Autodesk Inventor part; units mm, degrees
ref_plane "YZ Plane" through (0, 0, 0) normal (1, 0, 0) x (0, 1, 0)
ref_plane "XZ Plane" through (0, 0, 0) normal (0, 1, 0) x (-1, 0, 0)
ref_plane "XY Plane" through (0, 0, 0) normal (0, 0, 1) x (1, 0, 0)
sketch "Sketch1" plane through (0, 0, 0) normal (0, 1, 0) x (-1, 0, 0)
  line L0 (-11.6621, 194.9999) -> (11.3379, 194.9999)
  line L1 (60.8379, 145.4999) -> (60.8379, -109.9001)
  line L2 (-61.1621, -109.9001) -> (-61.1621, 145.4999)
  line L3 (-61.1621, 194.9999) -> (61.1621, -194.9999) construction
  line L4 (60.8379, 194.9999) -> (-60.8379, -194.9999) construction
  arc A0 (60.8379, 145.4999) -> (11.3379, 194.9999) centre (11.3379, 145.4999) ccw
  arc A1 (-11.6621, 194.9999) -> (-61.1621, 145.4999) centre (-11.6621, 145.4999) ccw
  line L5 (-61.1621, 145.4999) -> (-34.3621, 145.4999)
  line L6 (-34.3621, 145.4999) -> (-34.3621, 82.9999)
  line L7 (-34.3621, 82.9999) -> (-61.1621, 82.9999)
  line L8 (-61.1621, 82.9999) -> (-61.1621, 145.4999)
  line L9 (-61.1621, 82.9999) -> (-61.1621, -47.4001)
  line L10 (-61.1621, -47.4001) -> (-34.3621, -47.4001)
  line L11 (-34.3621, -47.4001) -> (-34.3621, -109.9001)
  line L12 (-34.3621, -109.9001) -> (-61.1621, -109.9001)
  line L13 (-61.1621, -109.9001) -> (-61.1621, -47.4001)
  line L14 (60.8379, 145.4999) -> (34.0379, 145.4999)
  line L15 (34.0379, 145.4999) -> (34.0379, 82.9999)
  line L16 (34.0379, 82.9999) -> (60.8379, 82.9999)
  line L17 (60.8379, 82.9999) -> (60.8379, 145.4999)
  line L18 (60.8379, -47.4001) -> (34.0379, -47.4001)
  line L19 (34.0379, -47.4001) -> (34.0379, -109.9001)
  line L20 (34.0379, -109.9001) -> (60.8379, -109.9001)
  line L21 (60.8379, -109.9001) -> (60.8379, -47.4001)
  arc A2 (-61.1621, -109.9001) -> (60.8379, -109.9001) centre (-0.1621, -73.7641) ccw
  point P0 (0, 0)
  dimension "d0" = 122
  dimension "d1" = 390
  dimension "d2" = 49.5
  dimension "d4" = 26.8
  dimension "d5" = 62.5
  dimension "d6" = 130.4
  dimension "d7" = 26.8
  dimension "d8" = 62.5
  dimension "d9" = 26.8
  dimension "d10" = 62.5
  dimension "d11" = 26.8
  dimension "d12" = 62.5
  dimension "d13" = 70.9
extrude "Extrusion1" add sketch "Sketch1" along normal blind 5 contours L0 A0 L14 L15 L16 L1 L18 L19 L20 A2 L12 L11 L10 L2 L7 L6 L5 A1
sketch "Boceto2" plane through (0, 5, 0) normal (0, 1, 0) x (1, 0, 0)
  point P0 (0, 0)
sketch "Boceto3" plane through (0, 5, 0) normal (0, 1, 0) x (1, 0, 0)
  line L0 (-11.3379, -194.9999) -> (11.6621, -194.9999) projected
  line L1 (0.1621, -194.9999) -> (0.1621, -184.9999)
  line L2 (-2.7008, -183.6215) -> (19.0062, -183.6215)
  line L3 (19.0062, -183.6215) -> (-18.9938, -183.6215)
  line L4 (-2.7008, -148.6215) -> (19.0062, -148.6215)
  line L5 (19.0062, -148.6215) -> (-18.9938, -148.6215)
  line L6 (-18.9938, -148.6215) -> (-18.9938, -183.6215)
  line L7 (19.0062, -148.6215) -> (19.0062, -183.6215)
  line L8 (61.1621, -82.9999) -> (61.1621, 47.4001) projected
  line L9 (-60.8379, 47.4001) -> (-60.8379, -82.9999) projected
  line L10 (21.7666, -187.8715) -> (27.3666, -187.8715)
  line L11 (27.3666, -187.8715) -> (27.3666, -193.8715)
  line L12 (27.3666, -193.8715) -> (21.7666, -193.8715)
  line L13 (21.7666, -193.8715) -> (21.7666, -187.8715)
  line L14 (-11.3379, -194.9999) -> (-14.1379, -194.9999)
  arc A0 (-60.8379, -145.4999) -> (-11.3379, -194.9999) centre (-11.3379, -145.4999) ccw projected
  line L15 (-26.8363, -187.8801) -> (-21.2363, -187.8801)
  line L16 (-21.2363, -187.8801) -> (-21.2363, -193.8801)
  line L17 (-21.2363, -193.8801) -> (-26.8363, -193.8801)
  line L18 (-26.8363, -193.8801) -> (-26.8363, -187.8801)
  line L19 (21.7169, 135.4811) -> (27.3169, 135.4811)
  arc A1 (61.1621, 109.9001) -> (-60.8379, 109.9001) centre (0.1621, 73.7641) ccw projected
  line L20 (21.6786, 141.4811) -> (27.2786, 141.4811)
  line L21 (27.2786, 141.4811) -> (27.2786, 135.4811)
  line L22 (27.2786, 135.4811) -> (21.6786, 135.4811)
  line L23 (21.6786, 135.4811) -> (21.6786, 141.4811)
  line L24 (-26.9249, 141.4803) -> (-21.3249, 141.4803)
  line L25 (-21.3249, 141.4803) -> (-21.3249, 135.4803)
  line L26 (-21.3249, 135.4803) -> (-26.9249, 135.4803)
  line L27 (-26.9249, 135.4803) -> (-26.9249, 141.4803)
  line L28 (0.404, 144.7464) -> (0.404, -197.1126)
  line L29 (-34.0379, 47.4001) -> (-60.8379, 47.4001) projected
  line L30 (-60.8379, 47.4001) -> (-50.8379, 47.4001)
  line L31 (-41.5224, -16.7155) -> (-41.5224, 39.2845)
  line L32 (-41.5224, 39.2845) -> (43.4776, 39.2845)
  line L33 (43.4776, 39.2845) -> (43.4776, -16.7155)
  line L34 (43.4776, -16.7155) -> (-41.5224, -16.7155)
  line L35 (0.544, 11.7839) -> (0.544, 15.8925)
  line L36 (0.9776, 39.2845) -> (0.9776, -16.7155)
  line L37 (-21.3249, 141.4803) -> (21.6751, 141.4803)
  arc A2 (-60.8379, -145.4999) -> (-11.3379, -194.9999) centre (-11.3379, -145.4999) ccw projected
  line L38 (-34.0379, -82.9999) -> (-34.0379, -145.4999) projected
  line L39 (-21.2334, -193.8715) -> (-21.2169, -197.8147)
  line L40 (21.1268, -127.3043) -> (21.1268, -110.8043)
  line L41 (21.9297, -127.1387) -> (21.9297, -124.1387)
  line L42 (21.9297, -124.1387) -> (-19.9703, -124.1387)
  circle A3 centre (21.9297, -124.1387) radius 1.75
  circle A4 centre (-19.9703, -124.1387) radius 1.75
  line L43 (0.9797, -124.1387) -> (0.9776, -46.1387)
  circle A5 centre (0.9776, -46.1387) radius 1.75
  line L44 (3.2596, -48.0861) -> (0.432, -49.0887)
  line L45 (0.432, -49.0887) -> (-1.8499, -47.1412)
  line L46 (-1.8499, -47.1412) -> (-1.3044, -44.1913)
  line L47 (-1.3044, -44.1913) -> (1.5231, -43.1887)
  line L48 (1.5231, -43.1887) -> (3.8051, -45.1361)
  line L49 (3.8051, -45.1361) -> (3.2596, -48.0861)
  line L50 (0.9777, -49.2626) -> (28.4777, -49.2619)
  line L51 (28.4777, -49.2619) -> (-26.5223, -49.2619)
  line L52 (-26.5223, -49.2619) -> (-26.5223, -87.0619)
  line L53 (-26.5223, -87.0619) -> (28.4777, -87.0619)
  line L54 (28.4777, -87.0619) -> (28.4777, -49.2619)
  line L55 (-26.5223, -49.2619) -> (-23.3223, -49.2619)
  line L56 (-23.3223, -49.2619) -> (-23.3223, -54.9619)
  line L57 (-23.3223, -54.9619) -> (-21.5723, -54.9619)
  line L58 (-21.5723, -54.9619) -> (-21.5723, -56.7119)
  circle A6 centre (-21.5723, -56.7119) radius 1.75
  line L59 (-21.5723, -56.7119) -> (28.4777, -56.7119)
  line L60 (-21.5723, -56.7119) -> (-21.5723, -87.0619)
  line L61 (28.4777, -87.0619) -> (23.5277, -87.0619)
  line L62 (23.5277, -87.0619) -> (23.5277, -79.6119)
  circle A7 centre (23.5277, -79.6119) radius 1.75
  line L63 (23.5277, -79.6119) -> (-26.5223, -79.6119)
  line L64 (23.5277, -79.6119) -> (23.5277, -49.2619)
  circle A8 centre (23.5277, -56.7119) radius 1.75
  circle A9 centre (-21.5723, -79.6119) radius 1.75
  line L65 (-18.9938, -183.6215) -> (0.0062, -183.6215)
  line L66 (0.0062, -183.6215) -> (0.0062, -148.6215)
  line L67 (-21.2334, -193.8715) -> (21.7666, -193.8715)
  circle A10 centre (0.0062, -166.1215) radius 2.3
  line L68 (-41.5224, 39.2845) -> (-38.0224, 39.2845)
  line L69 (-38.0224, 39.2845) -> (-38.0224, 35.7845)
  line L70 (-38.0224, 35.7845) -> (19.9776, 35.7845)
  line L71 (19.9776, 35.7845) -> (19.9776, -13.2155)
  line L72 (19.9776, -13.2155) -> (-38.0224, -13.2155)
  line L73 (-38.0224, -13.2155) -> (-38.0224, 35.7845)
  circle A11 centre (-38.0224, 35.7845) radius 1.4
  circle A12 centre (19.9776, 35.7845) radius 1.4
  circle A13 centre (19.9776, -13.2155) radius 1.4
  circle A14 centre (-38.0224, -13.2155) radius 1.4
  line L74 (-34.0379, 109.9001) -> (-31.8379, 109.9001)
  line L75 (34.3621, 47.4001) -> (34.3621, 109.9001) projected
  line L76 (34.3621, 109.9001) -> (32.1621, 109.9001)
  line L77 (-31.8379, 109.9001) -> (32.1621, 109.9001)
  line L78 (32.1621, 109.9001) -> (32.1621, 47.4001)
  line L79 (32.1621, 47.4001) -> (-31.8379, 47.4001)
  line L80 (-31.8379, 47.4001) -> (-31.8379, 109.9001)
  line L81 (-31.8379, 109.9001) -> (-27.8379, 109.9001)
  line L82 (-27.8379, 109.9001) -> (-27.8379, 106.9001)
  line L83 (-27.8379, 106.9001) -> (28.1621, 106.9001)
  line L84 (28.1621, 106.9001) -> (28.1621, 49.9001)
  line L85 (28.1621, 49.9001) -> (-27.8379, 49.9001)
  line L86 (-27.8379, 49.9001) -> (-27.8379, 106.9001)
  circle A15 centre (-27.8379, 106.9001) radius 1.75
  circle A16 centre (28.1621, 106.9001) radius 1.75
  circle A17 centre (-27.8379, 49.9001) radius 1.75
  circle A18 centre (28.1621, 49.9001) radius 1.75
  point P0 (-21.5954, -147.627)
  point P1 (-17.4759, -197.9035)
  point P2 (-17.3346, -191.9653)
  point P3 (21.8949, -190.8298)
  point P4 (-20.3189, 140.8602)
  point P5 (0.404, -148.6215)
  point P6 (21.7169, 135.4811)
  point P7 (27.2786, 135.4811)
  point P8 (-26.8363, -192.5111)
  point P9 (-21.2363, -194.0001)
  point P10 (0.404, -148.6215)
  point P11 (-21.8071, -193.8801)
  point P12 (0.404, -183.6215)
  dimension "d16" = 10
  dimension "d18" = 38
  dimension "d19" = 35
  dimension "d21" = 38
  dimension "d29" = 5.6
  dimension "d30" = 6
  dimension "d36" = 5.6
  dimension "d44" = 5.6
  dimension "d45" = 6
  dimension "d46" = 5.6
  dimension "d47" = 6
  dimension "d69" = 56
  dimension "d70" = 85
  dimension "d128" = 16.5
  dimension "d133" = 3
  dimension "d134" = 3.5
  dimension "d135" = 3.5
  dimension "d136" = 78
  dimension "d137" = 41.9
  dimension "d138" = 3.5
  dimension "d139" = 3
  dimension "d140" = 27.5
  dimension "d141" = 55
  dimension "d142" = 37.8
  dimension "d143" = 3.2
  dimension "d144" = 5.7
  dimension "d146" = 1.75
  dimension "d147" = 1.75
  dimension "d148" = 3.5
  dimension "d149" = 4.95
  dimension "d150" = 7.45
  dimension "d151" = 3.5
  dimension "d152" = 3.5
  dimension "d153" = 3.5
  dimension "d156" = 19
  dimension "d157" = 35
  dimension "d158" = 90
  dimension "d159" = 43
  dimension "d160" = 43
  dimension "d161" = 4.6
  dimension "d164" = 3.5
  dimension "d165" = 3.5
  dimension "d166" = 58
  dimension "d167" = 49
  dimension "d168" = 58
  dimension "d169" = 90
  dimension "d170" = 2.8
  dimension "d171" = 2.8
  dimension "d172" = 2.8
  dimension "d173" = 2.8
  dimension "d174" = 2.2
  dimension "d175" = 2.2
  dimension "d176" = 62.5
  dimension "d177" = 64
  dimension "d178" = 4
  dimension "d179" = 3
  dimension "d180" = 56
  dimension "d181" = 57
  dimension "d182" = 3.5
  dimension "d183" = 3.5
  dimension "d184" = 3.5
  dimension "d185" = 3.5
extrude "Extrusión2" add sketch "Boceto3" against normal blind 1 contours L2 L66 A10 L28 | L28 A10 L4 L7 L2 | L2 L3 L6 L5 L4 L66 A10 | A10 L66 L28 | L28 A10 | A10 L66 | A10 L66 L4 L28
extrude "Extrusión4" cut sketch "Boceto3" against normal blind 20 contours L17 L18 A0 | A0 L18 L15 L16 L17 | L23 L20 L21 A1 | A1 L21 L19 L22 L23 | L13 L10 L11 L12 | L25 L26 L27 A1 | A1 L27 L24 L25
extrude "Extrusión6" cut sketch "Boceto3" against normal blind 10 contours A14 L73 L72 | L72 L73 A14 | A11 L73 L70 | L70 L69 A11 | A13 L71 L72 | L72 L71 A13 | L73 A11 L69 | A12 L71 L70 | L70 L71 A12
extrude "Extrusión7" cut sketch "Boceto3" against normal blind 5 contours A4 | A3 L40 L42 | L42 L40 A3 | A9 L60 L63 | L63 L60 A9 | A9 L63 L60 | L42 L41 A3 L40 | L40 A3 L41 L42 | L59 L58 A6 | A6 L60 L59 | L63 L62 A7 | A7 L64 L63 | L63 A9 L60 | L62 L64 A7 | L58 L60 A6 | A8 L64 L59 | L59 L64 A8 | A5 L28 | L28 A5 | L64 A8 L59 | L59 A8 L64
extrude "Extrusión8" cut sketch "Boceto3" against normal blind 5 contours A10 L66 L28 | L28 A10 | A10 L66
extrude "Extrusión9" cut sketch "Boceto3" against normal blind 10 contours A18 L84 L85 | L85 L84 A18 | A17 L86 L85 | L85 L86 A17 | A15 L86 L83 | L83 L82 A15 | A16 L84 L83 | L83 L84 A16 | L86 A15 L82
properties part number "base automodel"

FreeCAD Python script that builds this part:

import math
import FreeCAD as App
import Part
import Sketcher
Q = App.Units.Quantity

doc = App.newDocument("Part")
params = doc.addObject("Spreadsheet::Sheet", "Params")
for row, (alias, value) in enumerate([
    ("sketch1_radius", "49.5 mm"),
    ("sketch1_radius2", "70.9 mm"),
    ("sketch1_width", "26.8 mm"),
    ("sketch1_height", "62.5 mm"),
    ("sketch1_height2", "130.4 mm"),
    ("pad1_length", "5 mm"),
    ("sketch2_width", "38 mm"),
    ("sketch2_height", "35 mm"),
    ("pad2_length", "1 mm"),
    ("sketch3_height", "6 mm"),
    ("sketch3_width", "5.6 mm"),
    ("pocket1_length", "20 mm"),
    ("sketch4_diameter", "2.8 mm"),
    ("pocket2_length", "10 mm"),
    ("sketch5_diameter", "3.5 mm"),
    ("pocket3_length", "5 mm"),
    ("sketch6_diameter", "4.6 mm"),
    ("pocket4_length", "5 mm"),
    ("sketch7_diameter", "3.5 mm"),
    ("pocket5_length", "10 mm"),
], start=1):
    params.set(f"A{row}", alias)
    params.set(f"B{row}", "=" + value)
    params.setAlias(f"B{row}", alias)

body = doc.addObject("PartDesign::Body", "Body")

# Sketch on XZ plane
sketch1 = body.newObject("Sketcher::SketchObject", "Sketch")
sketch1.AttachmentSupport = (doc.getObject("XZ_Plane"), [""])
sketch1.MapMode = "FlatFace"
sketch1.addGeometry(Part.LineSegment(App.Vector(-11.3379, 194.9999, 0), App.Vector(11.6621, 194.9999, 0)), False)
sketch1.addGeometry(Part.ArcOfCircle(Part.Circle(App.Vector(11.6621, 145.4999, 0), App.Vector(0, 0, 1), 49.5), math.radians(0), math.radians(90)), False)
sketch1.addGeometry(Part.LineSegment(App.Vector(61.1621, 145.4999, 0), App.Vector(34.3621, 145.4999, 0)), False)
sketch1.addGeometry(Part.LineSegment(App.Vector(34.3621, 145.4999, 0), App.Vector(34.3621, 82.9999, 0)), False)
sketch1.addGeometry(Part.LineSegment(App.Vector(34.3621, 82.9999, 0), App.Vector(61.1621, 82.9999, 0)), False)
sketch1.addGeometry(Part.LineSegment(App.Vector(61.1621, 82.9999, 0), App.Vector(61.1621, -47.4001, 0)), False)
sketch1.addGeometry(Part.LineSegment(App.Vector(61.1621, -47.4001, 0), App.Vector(34.3621, -47.4001, 0)), False)
sketch1.addGeometry(Part.LineSegment(App.Vector(34.3621, -47.4001, 0), App.Vector(34.3621, -109.9001, 0)), False)
sketch1.addGeometry(Part.LineSegment(App.Vector(34.3621, -109.9001, 0), App.Vector(61.1621, -109.9001, 0)), False)
sketch1.addGeometry(Part.ArcOfCircle(Part.Circle(App.Vector(0.1621, -73.7641, 0), App.Vector(0, 0, 1), 70.900003), math.radians(-149.357778), math.radians(-30.642222)), False)
sketch1.addGeometry(Part.LineSegment(App.Vector(-60.8379, -109.9001, 0), App.Vector(-34.0379, -109.9001, 0)), False)
sketch1.addGeometry(Part.LineSegment(App.Vector(-34.0379, -109.9001, 0), App.Vector(-34.0379, -47.4001, 0)), False)
sketch1.addGeometry(Part.LineSegment(App.Vector(-34.0379, -47.4001, 0), App.Vector(-60.8379, -47.4001, 0)), False)
sketch1.addGeometry(Part.LineSegment(App.Vector(-60.8379, -47.4001, 0), App.Vector(-60.8379, 82.9999, 0)), False)
sketch1.addGeometry(Part.LineSegment(App.Vector(-60.8379, 82.9999, 0), App.Vector(-34.0379, 82.9999, 0)), False)
sketch1.addGeometry(Part.LineSegment(App.Vector(-34.0379, 82.9999, 0), App.Vector(-34.0379, 145.4999, 0)), False)
sketch1.addGeometry(Part.LineSegment(App.Vector(-34.0379, 145.4999, 0), App.Vector(-60.8379, 145.4999, 0)), False)
sketch1.addGeometry(Part.ArcOfCircle(Part.Circle(App.Vector(-11.3379, 145.4999, 0), App.Vector(0, 0, 1), 49.5), math.radians(90), math.radians(180)), False)
sketch1.addConstraint(Sketcher.Constraint("Tangent", 0, 2, 1, 2))
sketch1.addConstraint(Sketcher.Constraint("Coincident", 1, 1, 2, 1))
sketch1.addConstraint(Sketcher.Constraint("Coincident", 2, 2, 3, 1))
sketch1.addConstraint(Sketcher.Constraint("Coincident", 3, 2, 4, 1))
sketch1.addConstraint(Sketcher.Constraint("Coincident", 4, 2, 5, 1))
sketch1.addConstraint(Sketcher.Constraint("Coincident", 5, 2, 6, 1))
sketch1.addConstraint(Sketcher.Constraint("Coincident", 6, 2, 7, 1))
sketch1.addConstraint(Sketcher.Constraint("Coincident", 7, 2, 8, 1))
sketch1.addConstraint(Sketcher.Constraint("Coincident", 8, 2, 9, 2))
sketch1.addConstraint(Sketcher.Constraint("Coincident", 9, 1, 10, 1))
sketch1.addConstraint(Sketcher.Constraint("Coincident", 10, 2, 11, 1))
sketch1.addConstraint(Sketcher.Constraint("Coincident", 11, 2, 12, 1))
sketch1.addConstraint(Sketcher.Constraint("Coincident", 12, 2, 13, 1))
sketch1.addConstraint(Sketcher.Constraint("Coincident", 13, 2, 14, 1))
sketch1.addConstraint(Sketcher.Constraint("Coincident", 14, 2, 15, 1))
sketch1.addConstraint(Sketcher.Constraint("Coincident", 15, 2, 16, 1))
sketch1.addConstraint(Sketcher.Constraint("Coincident", 16, 2, 17, 2))
sketch1.addConstraint(Sketcher.Constraint("Tangent", 17, 1, 0, 1))
sketch1.addConstraint(Sketcher.Constraint("Horizontal", 0))
sketch1.addConstraint(Sketcher.Constraint("Horizontal", 2))
sketch1.addConstraint(Sketcher.Constraint("Vertical", 3))
sketch1.addConstraint(Sketcher.Constraint("Horizontal", 4))
sketch1.addConstraint(Sketcher.Constraint("Vertical", 5))
sketch1.addConstraint(Sketcher.Constraint("Horizontal", 6))
sketch1.addConstraint(Sketcher.Constraint("Vertical", 7))
sketch1.addConstraint(Sketcher.Constraint("Horizontal", 8))
sketch1.addConstraint(Sketcher.Constraint("Horizontal", 10))
sketch1.addConstraint(Sketcher.Constraint("Vertical", 11))
sketch1.addConstraint(Sketcher.Constraint("Horizontal", 12))
sketch1.addConstraint(Sketcher.Constraint("Vertical", 13))
sketch1.addConstraint(Sketcher.Constraint("Horizontal", 14))
sketch1.addConstraint(Sketcher.Constraint("Vertical", 15))
sketch1.addConstraint(Sketcher.Constraint("Horizontal", 16))
sketch1.addConstraint(Sketcher.Constraint("Equal", 1, 17))
sketch1.addConstraint(Sketcher.Constraint("Horizontal", 17, 3, 1, 1))
sketch1.addConstraint(Sketcher.Constraint("Horizontal", 8, 2, 9, 1))
sketch1.addConstraint(Sketcher.Constraint("Horizontal", 6, 2, 11, 2))
sketch1.addConstraint(Sketcher.Constraint("Horizontal", 4, 2, 13, 2))
sketch1.addConstraint(Sketcher.Constraint("Horizontal", 2, 2, 15, 2))
sketch1.addConstraint(Sketcher.Constraint("Vertical", 1, 1, 4, 2))
sketch1.addConstraint(Sketcher.Constraint("Vertical", 3, 2, 6, 2))
sketch1.addConstraint(Sketcher.Constraint("Vertical", 5, 2, 8, 2))
sketch1.addConstraint(Sketcher.Constraint("Vertical", 9, 1, 12, 2))
sketch1.addConstraint(Sketcher.Constraint("Vertical", 11, 2, 14, 2))
sketch1.addConstraint(Sketcher.Constraint("Vertical", 13, 2, 16, 2))
sketch1.addConstraint(Sketcher.Constraint("Equal", 8, 10))
sketch1.addConstraint(Sketcher.Constraint("Equal", 3, 7))
sketch1.addConstraint(Sketcher.Constraint("Radius", 1, Q("49.5 mm")))
sketch1.addConstraint(Sketcher.Constraint("Radius", 9, Q("70.9 mm")))
sketch1.addConstraint(Sketcher.Constraint("DistanceX", 2, 2, 2, 1, Q("26.8 mm")))
sketch1.addConstraint(Sketcher.Constraint("DistanceY", 3, 2, 3, 1, Q("62.5 mm")))
sketch1.addConstraint(Sketcher.Constraint("DistanceY", 5, 2, 5, 1, Q("130.4 mm")))
sketch1.addConstraint(Sketcher.Constraint("DistanceX", 9, 1, 8, 2, Q("122 mm")))
sketch1.addConstraint(Sketcher.Constraint("DistanceY", -1, 1, 0, 2, Q("195 mm")))
sketch1.addConstraint(Sketcher.Constraint("DistanceX", -1, 1, 1, 3, Q("11.662 mm")))
sketch1.setExpression("Constraints[47]", "Params.sketch1_radius")
sketch1.setExpression("Constraints[48]", "Params.sketch1_radius2")
sketch1.setExpression("Constraints[49]", "Params.sketch1_width")
sketch1.setExpression("Constraints[50]", "Params.sketch1_height")
sketch1.setExpression("Constraints[51]", "Params.sketch1_height2")
pad1 = body.newObject("PartDesign::Pad", "Pad")
pad1.Profile = sketch1
pad1.setExpression("Length", "Params.pad1_length")
pad1.Reversed = True

# Sketch on XZ plane
sketch2 = body.newObject("Sketcher::SketchObject", "Sketch001")
sketch2.AttachmentSupport = (doc.getObject("XZ_Plane"), [""])
sketch2.MapMode = "FlatFace"
sketch2.AttachmentOffset = App.Placement(App.Vector(0, 0, -5), App.Rotation())
sketch2.addGeometry(Part.LineSegment(App.Vector(19.0062, 183.6215, 0), App.Vector(19.0062, 148.6215, 0)), False)
sketch2.addGeometry(Part.LineSegment(App.Vector(19.0062, 148.6215, 0), App.Vector(-18.9938, 148.6215, 0)), False)
sketch2.addGeometry(Part.LineSegment(App.Vector(-18.9938, 148.6215, 0), App.Vector(-18.9938, 183.6215, 0)), False)
sketch2.addGeometry(Part.LineSegment(App.Vector(-18.9938, 183.6215, 0), App.Vector(19.0062, 183.6215, 0)), False)
sketch2.addConstraint(Sketcher.Constraint("Coincident", 0, 2, 1, 1))
sketch2.addConstraint(Sketcher.Constraint("Coincident", 1, 2, 2, 1))
sketch2.addConstraint(Sketcher.Constraint("Coincident", 2, 2, 3, 1))
sketch2.addConstraint(Sketcher.Constraint("Coincident", 3, 2, 0, 1))
sketch2.addConstraint(Sketcher.Constraint("Vertical", 0))
sketch2.addConstraint(Sketcher.Constraint("Horizontal", 1))
sketch2.addConstraint(Sketcher.Constraint("Vertical", 2))
sketch2.addConstraint(Sketcher.Constraint("Horizontal", 3))
sketch2.addConstraint(Sketcher.Constraint("DistanceX", 1, 2, 1, 1, Q("38 mm")))
sketch2.addConstraint(Sketcher.Constraint("DistanceY", 0, 2, 0, 1, Q("35 mm")))
sketch2.addConstraint(Sketcher.Constraint("DistanceX", -1, 1, 0, 2, Q("19.0062 mm")))
sketch2.addConstraint(Sketcher.Constraint("DistanceY", -1, 1, 0, 2, Q("148.6215 mm")))
sketch2.setExpression("Constraints[8]", "Params.sketch2_width")
sketch2.setExpression("Constraints[9]", "Params.sketch2_height")
pad2 = body.newObject("PartDesign::Pad", "Pad001")
pad2.Profile = sketch2
pad2.setExpression("Length", "Params.pad2_length")

# Sketch on XZ plane
sketch3 = body.newObject("Sketcher::SketchObject", "Sketch002")
sketch3.AttachmentSupport = (doc.getObject("XZ_Plane"), [""])
sketch3.MapMode = "FlatFace"
sketch3.AttachmentOffset = App.Placement(App.Vector(0, 0, -5), App.Rotation())
sketch3.addGeometry(Part.LineSegment(App.Vector(-26.8363, 193.8801, 0), App.Vector(-21.2363, 193.8801, 0)), False)
sketch3.addGeometry(Part.LineSegment(App.Vector(-21.2363, 193.8801, 0), App.Vector(-21.2363, 187.8801, 0)), False)
sketch3.addGeometry(Part.LineSegment(App.Vector(-21.2363, 187.8801, 0), App.Vector(-26.8363, 187.8801, 0)), False)
sketch3.addGeometry(Part.LineSegment(App.Vector(-26.8363, 187.8801, 0), App.Vector(-26.8363, 193.8801, 0)), False)
sketch3.addGeometry(Part.LineSegment(App.Vector(21.6786, -141.4811, 0), App.Vector(21.6786, -135.4811, 0)), False)
sketch3.addGeometry(Part.LineSegment(App.Vector(21.6786, -135.4811, 0), App.Vector(27.2786, -135.4811, 0)), False)
sketch3.addGeometry(Part.LineSegment(App.Vector(27.2786, -135.4811, 0), App.Vector(27.2786, -141.4811, 0)), False)
sketch3.addGeometry(Part.LineSegment(App.Vector(27.2786, -141.4811, 0), App.Vector(21.6786, -141.4811, 0)), False)
sketch3.addGeometry(Part.LineSegment(App.Vector(21.7666, 187.8715, 0), App.Vector(21.7666, 193.8715, 0)), False)
sketch3.addGeometry(Part.LineSegment(App.Vector(21.7666, 193.8715, 0), App.Vector(27.3666, 193.8715, 0)), False)
sketch3.addGeometry(Part.LineSegment(App.Vector(27.3666, 193.8715, 0), App.Vector(27.3666, 187.8715, 0)), False)
sketch3.addGeometry(Part.LineSegment(App.Vector(27.3666, 187.8715, 0), App.Vector(21.7666, 187.8715, 0)), False)
sketch3.addGeometry(Part.LineSegment(App.Vector(-21.3249, -135.4803, 0), App.Vector(-21.3249, -141.4803, 0)), False)
sketch3.addGeometry(Part.LineSegment(App.Vector(-21.3249, -141.4803, 0), App.Vector(-26.9249, -141.4803, 0)), False)
sketch3.addGeometry(Part.LineSegment(App.Vector(-26.9249, -141.4803, 0), App.Vector(-26.9249, -135.4803, 0)), False)
sketch3.addGeometry(Part.LineSegment(App.Vector(-26.9249, -135.4803, 0), App.Vector(-21.3249, -135.4803, 0)), False)
sketch3.addConstraint(Sketcher.Constraint("Coincident", 0, 2, 1, 1))
sketch3.addConstraint(Sketcher.Constraint("Coincident", 1, 2, 2, 1))
sketch3.addConstraint(Sketcher.Constraint("Coincident", 2, 2, 3, 1))
sketch3.addConstraint(Sketcher.Constraint("Coincident", 3, 2, 0, 1))
sketch3.addConstraint(Sketcher.Constraint("Coincident", 4, 2, 5, 1))
sketch3.addConstraint(Sketcher.Constraint("Coincident", 5, 2, 6, 1))
sketch3.addConstraint(Sketcher.Constraint("Coincident", 6, 2, 7, 1))
sketch3.addConstraint(Sketcher.Constraint("Coincident", 7, 2, 4, 1))
sketch3.addConstraint(Sketcher.Constraint("Coincident", 8, 2, 9, 1))
sketch3.addConstraint(Sketcher.Constraint("Coincident", 9, 2, 10, 1))
sketch3.addConstraint(Sketcher.Constraint("Coincident", 10, 2, 11, 1))
sketch3.addConstraint(Sketcher.Constraint("Coincident", 11, 2, 8, 1))
sketch3.addConstraint(Sketcher.Constraint("Coincident", 12, 2, 13, 1))
sketch3.addConstraint(Sketcher.Constraint("Coincident", 13, 2, 14, 1))
sketch3.addConstraint(Sketcher.Constraint("Coincident", 14, 2, 15, 1))
sketch3.addConstraint(Sketcher.Constraint("Coincident", 15, 2, 12, 1))
sketch3.addConstraint(Sketcher.Constraint("Horizontal", 0))
sketch3.addConstraint(Sketcher.Constraint("Vertical", 1))
sketch3.addConstraint(Sketcher.Constraint("Horizontal", 2))
sketch3.addConstraint(Sketcher.Constraint("Vertical", 3))
sketch3.addConstraint(Sketcher.Constraint("Vertical", 4))
sketch3.addConstraint(Sketcher.Constraint("Horizontal", 5))
sketch3.addConstraint(Sketcher.Constraint("Vertical", 6))
sketch3.addConstraint(Sketcher.Constraint("Horizontal", 7))
sketch3.addConstraint(Sketcher.Constraint("Vertical", 8))
sketch3.addConstraint(Sketcher.Constraint("Horizontal", 9))
sketch3.addConstraint(Sketcher.Constraint("Vertical", 10))
sketch3.addConstraint(Sketcher.Constraint("Horizontal", 11))
sketch3.addConstraint(Sketcher.Constraint("Vertical", 12))
sketch3.addConstraint(Sketcher.Constraint("Horizontal", 13))
sketch3.addConstraint(Sketcher.Constraint("Vertical", 14))
sketch3.addConstraint(Sketcher.Constraint("Horizontal", 15))
sketch3.addConstraint(Sketcher.Constraint("Equal", 2, 5))
sketch3.addConstraint(Sketcher.Constraint("Equal", 7, 9))
sketch3.addConstraint(Sketcher.Constraint("Equal", 11, 13))
sketch3.addConstraint(Sketcher.Constraint("Equal", 3, 4))
sketch3.addConstraint(Sketcher.Constraint("Equal", 6, 8))
sketch3.addConstraint(Sketcher.Constraint("Equal", 10, 12))
sketch3.addConstraint(Sketcher.Constraint("DistanceY", 1, 2, 1, 1, Q("6 mm")))
sketch3.addConstraint(Sketcher.Constraint("DistanceX", 0, 1, 0, 2, Q("5.6 mm")))
sketch3.addConstraint(Sketcher.Constraint("DistanceY", -1, 1, 0, 2, Q("193.88 mm")))
sketch3.addConstraint(Sketcher.Constraint("DistanceY", 4, 2, -1, 1, Q("135.481 mm")))
sketch3.addConstraint(Sketcher.Constraint("DistanceX", 12, 2, -1, 1, Q("21.325 mm")))
sketch3.addConstraint(Sketcher.Constraint("DistanceX", 1, 2, 4, 2, Q("42.915 mm")))
sketch3.addConstraint(Sketcher.Constraint("DistanceX", 0, 2, 8, 2, Q("43.003 mm")))
sketch3.addConstraint(Sketcher.Constraint("DistanceX", 0, 2, -1, 1, Q("21.2363 mm")))
sketch3.addConstraint(Sketcher.Constraint("DistanceY", -1, 1, 8, 2, Q("193.8715 mm")))
sketch3.addConstraint(Sketcher.Constraint("DistanceY", 12, 2, -1, 1, Q("141.4803 mm")))
sketch3.setExpression("Constraints[38]", "Params.sketch3_height")
sketch3.setExpression("Constraints[39]", "Params.sketch3_width")
pocket1 = body.newObject("PartDesign::Pocket", "Pocket")
pocket1.Profile = sketch3
pocket1.setExpression("Length", "Params.pocket1_length")
pocket1.Reversed = True

# Sketch on XZ plane
sketch4 = body.newObject("Sketcher::SketchObject", "Sketch003")
sketch4.AttachmentSupport = (doc.getObject("XZ_Plane"), [""])
sketch4.MapMode = "FlatFace"
sketch4.AttachmentOffset = App.Placement(App.Vector(0, 0, -5), App.Rotation())
sketch4.addGeometry(Part.Circle(App.Vector(-38.0224, 13.2155, 0), App.Vector(0, 0, 1), 1.4), False)
sketch4.addGeometry(Part.Circle(App.Vector(-38.0224, -35.7845, 0), App.Vector(0, 0, 1), 1.4), False)
sketch4.addGeometry(Part.Circle(App.Vector(19.9776, 13.2155, 0), App.Vector(0, 0, 1), 1.4), False)
sketch4.addGeometry(Part.Circle(App.Vector(19.9776, -35.7845, 0), App.Vector(0, 0, 1), 1.4), False)
sketch4.addConstraint(Sketcher.Constraint("Equal", 0, 1))
sketch4.addConstraint(Sketcher.Constraint("Equal", 1, 2))
sketch4.addConstraint(Sketcher.Constraint("Equal", 2, 3))
sketch4.addConstraint(Sketcher.Constraint("Horizontal", 0, 3, 2, 3))
sketch4.addConstraint(Sketcher.Constraint("Horizontal", 1, 3, 3, 3))
sketch4.addConstraint(Sketcher.Constraint("Vertical", 0, 3, 1, 3))
sketch4.addConstraint(Sketcher.Constraint("Vertical", 2, 3, 3, 3))
sketch4.addConstraint(Sketcher.Constraint("Diameter", 0, Q("2.8 mm")))
sketch4.addConstraint(Sketcher.Constraint("DistanceY", 1, 3, 0, 3, Q("49 mm")))
sketch4.addConstraint(Sketcher.Constraint("DistanceX", 0, 3, 2, 3, Q("58 mm")))
sketch4.addConstraint(Sketcher.Constraint("DistanceX", 0, 3, -1, 1, Q("38.0224 mm")))
sketch4.addConstraint(Sketcher.Constraint("DistanceY", -1, 1, 0, 3, Q("13.2155 mm")))
sketch4.setExpression("Constraints[7]", "Params.sketch4_diameter")
pocket2 = body.newObject("PartDesign::Pocket", "Pocket001")
pocket2.Profile = sketch4
pocket2.setExpression("Length", "Params.pocket2_length")
pocket2.Reversed = True

# Sketch on XZ plane
sketch5 = body.newObject("Sketcher::SketchObject", "Sketch004")
sketch5.AttachmentSupport = (doc.getObject("XZ_Plane"), [""])
sketch5.MapMode = "FlatFace"
sketch5.AttachmentOffset = App.Placement(App.Vector(0, 0, -5), App.Rotation())
sketch5.addGeometry(Part.Circle(App.Vector(-19.9703, 124.1387, 0), App.Vector(0, 0, 1), 1.75), False)
sketch5.addGeometry(Part.Circle(App.Vector(21.9297, 124.1387, 0), App.Vector(0, 0, 1), 1.75), False)
sketch5.addGeometry(Part.Circle(App.Vector(-21.5723, 79.6119, 0), App.Vector(0, 0, 1), 1.75), False)
sketch5.addGeometry(Part.Circle(App.Vector(-21.5723, 56.7119, 0), App.Vector(0, 0, 1), 1.75), False)
sketch5.addGeometry(Part.Circle(App.Vector(23.5277, 79.6119, 0), App.Vector(0, 0, 1), 1.75), False)
sketch5.addGeometry(Part.Circle(App.Vector(23.5277, 56.7119, 0), App.Vector(0, 0, 1), 1.75), False)
sketch5.addGeometry(Part.Circle(App.Vector(0.9776, 46.1387, 0), App.Vector(0, 0, 1), 1.75), False)
sketch5.addConstraint(Sketcher.Constraint("Equal", 0, 1))
sketch5.addConstraint(Sketcher.Constraint("Equal", 1, 2))
sketch5.addConstraint(Sketcher.Constraint("Equal", 2, 3))
sketch5.addConstraint(Sketcher.Constraint("Equal", 3, 4))
sketch5.addConstraint(Sketcher.Constraint("Equal", 4, 5))
sketch5.addConstraint(Sketcher.Constraint("Equal", 5, 6))
sketch5.addConstraint(Sketcher.Constraint("Horizontal", 0, 3, 1, 3))
sketch5.addConstraint(Sketcher.Constraint("Horizontal", 2, 3, 4, 3))
sketch5.addConstraint(Sketcher.Constraint("Horizontal", 3, 3, 5, 3))
sketch5.addConstraint(Sketcher.Constraint("Vertical", 2, 3, 3, 3))
sketch5.addConstraint(Sketcher.Constraint("Vertical", 4, 3, 5, 3))
sketch5.addConstraint(Sketcher.Constraint("Diameter", 0, Q("3.5 mm")))
sketch5.addConstraint(Sketcher.Constraint("DistanceY", 6, 3, 0, 3, Q("78 mm")))
sketch5.addConstraint(Sketcher.Constraint("DistanceX", 0, 3, 1, 3, Q("41.9 mm")))
sketch5.addConstraint(Sketcher.Constraint("DistanceY", 3, 3, 2, 3, Q("22.9 mm")))
sketch5.addConstraint(Sketcher.Constraint("DistanceX", 2, 3, 4, 3, Q("45.1 mm")))
sketch5.addConstraint(Sketcher.Constraint("DistanceX", 3, 3, 6, 3, Q("22.55 mm")))
sketch5.addConstraint(Sketcher.Constraint("DistanceY", -1, 1, 2, 3, Q("79.612 mm")))
sketch5.addConstraint(Sketcher.Constraint("DistanceX", 2, 3, 0, 3, Q("1.602 mm")))
sketch5.addConstraint(Sketcher.Constraint("DistanceX", 0, 3, -1, 1, Q("19.9703 mm")))
sketch5.addConstraint(Sketcher.Constraint("DistanceY", -1, 1, 0, 3, Q("124.1387 mm")))
sketch5.setExpression("Constraints[11]", "Params.sketch5_diameter")
pocket3 = body.newObject("PartDesign::Pocket", "Pocket002")
pocket3.Profile = sketch5
pocket3.setExpression("Length", "Params.pocket3_length")
pocket3.Reversed = True

# Sketch on XZ plane
sketch6 = body.newObject("Sketcher::SketchObject", "Sketch005")
sketch6.AttachmentSupport = (doc.getObject("XZ_Plane"), [""])
sketch6.MapMode = "FlatFace"
sketch6.AttachmentOffset = App.Placement(App.Vector(0, 0, -5), App.Rotation())
sketch6.addGeometry(Part.Circle(App.Vector(0.0062, 166.1215, 0), App.Vector(0, 0, 1), 2.3), False)
sketch6.addConstraint(Sketcher.Constraint("Diameter", 0, Q("4.6 mm")))
sketch6.addConstraint(Sketcher.Constraint("DistanceX", -1, 1, 0, 3, Q("0.0062 mm")))
sketch6.addConstraint(Sketcher.Constraint("DistanceY", -1, 1, 0, 3, Q("166.1215 mm")))
sketch6.setExpression("Constraints[0]", "Params.sketch6_diameter")
pocket4 = body.newObject("PartDesign::Pocket", "Pocket003")
pocket4.Profile = sketch6
pocket4.setExpression("Length", "Params.pocket4_length")
pocket4.Reversed = True

# Sketch on XZ plane
sketch7 = body.newObject("Sketcher::SketchObject", "Sketch006")
sketch7.AttachmentSupport = (doc.getObject("XZ_Plane"), [""])
sketch7.MapMode = "FlatFace"
sketch7.AttachmentOffset = App.Placement(App.Vector(0, 0, -5), App.Rotation())
sketch7.addGeometry(Part.Circle(App.Vector(28.1621, -49.9001, 0), App.Vector(0, 0, 1), 1.75), False)
sketch7.addGeometry(Part.Circle(App.Vector(-27.8379, -49.9001, 0), App.Vector(0, 0, 1), 1.75), False)
sketch7.addGeometry(Part.Circle(App.Vector(-27.8379, -106.9001, 0), App.Vector(0, 0, 1), 1.75), False)
sketch7.addGeometry(Part.Circle(App.Vector(28.1621, -106.9001, 0), App.Vector(0, 0, 1), 1.75), False)
sketch7.addConstraint(Sketcher.Constraint("Equal", 0, 1))
sketch7.addConstraint(Sketcher.Constraint("Equal", 1, 2))
sketch7.addConstraint(Sketcher.Constraint("Equal", 2, 3))
sketch7.addConstraint(Sketcher.Constraint("Horizontal", 0, 3, 1, 3))
sketch7.addConstraint(Sketcher.Constraint("Horizontal", 2, 3, 3, 3))
sketch7.addConstraint(Sketcher.Constraint("Vertical", 1, 3, 2, 3))
sketch7.addConstraint(Sketcher.Constraint("Vertical", 0, 3, 3, 3))
sketch7.addConstraint(Sketcher.Constraint("Diameter", 0, Q("3.5 mm")))
sketch7.addConstraint(Sketcher.Constraint("DistanceX", 1, 3, 0, 3, Q("56 mm")))
sketch7.addConstraint(Sketcher.Constraint("DistanceY", 2, 3, 1, 3, Q("57 mm")))
sketch7.addConstraint(Sketcher.Constraint("DistanceY", 0, 3, -1, 1, Q("49.9 mm")))
sketch7.addConstraint(Sketcher.Constraint("DistanceX", -1, 1, 0, 3, Q("28.162 mm")))
sketch7.setExpression("Constraints[7]", "Params.sketch7_diameter")
pocket5 = body.newObject("PartDesign::Pocket", "Pocket004")
pocket5.Profile = sketch7
pocket5.setExpression("Length", "Params.pocket5_length")
pocket5.Reversed = True

doc.recompute()
